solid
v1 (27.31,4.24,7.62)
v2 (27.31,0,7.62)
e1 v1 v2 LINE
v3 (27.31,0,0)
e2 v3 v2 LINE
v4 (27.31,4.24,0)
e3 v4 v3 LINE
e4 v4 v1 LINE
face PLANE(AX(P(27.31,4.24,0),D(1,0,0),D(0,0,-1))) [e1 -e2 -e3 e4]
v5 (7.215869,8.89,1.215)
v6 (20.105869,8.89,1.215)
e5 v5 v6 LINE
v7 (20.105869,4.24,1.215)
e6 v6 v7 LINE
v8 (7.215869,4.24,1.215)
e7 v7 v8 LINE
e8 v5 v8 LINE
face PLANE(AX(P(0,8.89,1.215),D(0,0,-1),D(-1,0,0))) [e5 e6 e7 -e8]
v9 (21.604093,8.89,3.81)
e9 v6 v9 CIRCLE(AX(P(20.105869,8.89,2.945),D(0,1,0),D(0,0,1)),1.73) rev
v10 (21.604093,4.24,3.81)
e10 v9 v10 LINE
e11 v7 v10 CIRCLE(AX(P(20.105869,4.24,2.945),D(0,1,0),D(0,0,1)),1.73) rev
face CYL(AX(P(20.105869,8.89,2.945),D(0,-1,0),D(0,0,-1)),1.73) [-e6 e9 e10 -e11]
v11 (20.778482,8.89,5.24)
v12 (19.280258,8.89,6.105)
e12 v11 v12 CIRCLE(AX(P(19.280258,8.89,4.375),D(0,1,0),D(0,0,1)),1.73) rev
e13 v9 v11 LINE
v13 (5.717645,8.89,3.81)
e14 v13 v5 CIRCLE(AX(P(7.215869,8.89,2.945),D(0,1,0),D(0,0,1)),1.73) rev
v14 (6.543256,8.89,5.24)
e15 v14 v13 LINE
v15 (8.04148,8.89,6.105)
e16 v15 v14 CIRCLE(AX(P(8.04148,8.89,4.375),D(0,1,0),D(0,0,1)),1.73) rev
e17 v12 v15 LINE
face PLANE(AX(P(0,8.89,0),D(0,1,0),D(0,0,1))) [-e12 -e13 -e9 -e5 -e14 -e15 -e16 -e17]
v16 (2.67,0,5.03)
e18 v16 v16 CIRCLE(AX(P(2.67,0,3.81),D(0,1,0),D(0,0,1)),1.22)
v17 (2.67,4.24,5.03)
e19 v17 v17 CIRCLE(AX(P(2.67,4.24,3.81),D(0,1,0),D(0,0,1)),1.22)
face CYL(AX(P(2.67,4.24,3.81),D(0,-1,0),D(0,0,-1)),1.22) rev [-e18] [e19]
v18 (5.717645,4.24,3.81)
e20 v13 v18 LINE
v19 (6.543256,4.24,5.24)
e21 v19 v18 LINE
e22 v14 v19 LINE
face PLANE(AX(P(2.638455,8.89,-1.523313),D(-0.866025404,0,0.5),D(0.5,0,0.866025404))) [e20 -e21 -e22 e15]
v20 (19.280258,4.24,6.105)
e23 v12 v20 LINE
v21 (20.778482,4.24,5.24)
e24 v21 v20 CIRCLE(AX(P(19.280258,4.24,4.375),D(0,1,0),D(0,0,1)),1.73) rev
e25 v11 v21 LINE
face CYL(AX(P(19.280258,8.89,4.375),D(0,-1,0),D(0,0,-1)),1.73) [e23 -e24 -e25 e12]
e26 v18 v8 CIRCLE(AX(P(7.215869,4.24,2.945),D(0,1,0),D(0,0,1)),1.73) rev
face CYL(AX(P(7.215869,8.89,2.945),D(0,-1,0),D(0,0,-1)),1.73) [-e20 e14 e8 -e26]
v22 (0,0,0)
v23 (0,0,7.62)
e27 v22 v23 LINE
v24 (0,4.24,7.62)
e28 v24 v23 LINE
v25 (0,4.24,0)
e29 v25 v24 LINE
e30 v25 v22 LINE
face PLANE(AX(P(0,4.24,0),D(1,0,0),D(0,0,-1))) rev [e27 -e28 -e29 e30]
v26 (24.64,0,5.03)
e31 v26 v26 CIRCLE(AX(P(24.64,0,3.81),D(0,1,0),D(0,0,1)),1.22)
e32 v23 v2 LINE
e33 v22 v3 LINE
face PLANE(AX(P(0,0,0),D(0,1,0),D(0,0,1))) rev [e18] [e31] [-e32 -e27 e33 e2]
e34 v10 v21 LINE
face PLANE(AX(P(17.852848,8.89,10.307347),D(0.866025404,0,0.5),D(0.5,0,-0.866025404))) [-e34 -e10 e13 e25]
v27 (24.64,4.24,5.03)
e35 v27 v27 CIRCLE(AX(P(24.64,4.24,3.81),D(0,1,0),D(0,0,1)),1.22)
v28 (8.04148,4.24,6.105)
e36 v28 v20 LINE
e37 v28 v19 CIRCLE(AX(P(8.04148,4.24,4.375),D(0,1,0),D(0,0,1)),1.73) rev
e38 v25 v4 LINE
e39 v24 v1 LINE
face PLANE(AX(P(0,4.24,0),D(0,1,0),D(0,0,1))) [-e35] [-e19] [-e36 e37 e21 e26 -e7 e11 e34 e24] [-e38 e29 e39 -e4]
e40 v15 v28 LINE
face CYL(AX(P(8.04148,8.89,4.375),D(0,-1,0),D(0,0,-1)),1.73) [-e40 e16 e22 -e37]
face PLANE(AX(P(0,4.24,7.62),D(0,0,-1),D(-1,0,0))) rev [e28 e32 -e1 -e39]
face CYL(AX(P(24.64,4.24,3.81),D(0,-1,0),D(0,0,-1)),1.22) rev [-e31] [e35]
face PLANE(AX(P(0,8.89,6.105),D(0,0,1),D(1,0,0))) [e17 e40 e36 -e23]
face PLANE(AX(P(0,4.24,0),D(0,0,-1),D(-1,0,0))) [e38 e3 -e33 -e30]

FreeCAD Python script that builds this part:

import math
import FreeCAD as App
import Part
import Sketcher
Q = App.Units.Quantity


def add_polygon(sketch, points):
    """Adds a closed chain of lines whose ends are joined by coincident constraints."""
    first, n = sketch.GeometryCount, len(points)
    for a, b in zip(points, points[1:] + points[:1]):
        sketch.addGeometry(Part.LineSegment(App.Vector(*a, 0), App.Vector(*b, 0)), False)
    for i in range(n):
        sketch.addConstraint(Sketcher.Constraint("Coincident", first + i, 2, first + (i + 1) % n, 1))

doc = App.newDocument("Part")
body = doc.addObject("PartDesign::Body", "Body")

sketch1 = body.newObject("Sketcher::SketchObject", "Sketch")
sketch1.AttachmentSupport = (doc.getObject("XZ_Plane"), [""])
sketch1.MapMode = "FlatFace"
add_polygon(sketch1, [(0, 0), (0, 7.62), (27.31, 7.62), (27.31, 0)])
sketch1.addGeometry(Part.Circle(App.Vector(2.67, 3.81, 0), App.Vector(0, 0, 1), 1.22), False)
sketch1.addGeometry(Part.Circle(App.Vector(24.64, 3.81, 0), App.Vector(0, 0, 1), 1.22), False)
sketch1.addGeometry(Part.ArcOfCircle(Part.Circle(App.Vector(19.28, 4.38, 0), App.Vector(0, 0, 1), 1.73), math.radians(30), math.radians(43.23)), False)
sketch1.addGeometry(Part.LineSegment(App.Vector(20.54, 5.56, 0), App.Vector(6.78, 5.56, 0)), False)
sketch1.addGeometry(Part.ArcOfCircle(Part.Circle(App.Vector(8.04, 4.38, 0), App.Vector(0, 0, 1), 1.73), math.radians(136.77), math.radians(150)), False)
sketch1.addGeometry(Part.LineSegment(App.Vector(6.54, 5.24, 0), App.Vector(5.72, 3.81, 0)), False)
sketch1.addGeometry(Part.ArcOfCircle(Part.Circle(App.Vector(7.22, 2.95, 0), App.Vector(0, 0, 1), 1.73), math.radians(150), math.radians(158.61)), False)
sketch1.addGeometry(Part.LineSegment(App.Vector(5.61, 3.58, 0), App.Vector(5.61, 2.31, 0)), False)
sketch1.addGeometry(Part.ArcOfCircle(Part.Circle(App.Vector(7.22, 2.95, 0), App.Vector(0, 0, 1), 1.73), math.radians(-158.61), math.radians(-149.23)), False)
sketch1.addGeometry(Part.LineSegment(App.Vector(5.73, 2.06, 0), App.Vector(21.59, 2.06, 0)), False)
sketch1.addGeometry(Part.ArcOfCircle(Part.Circle(App.Vector(20.11, 2.95, 0), App.Vector(0, 0, 1), 1.73), math.radians(-30.77), math.radians(-22.43)), False)
sketch1.addGeometry(Part.LineSegment(App.Vector(21.7, 2.28, 0), App.Vector(21.7, 3.61, 0)), False)
sketch1.addGeometry(Part.ArcOfCircle(Part.Circle(App.Vector(20.11, 2.94, 0), App.Vector(0, 0, 1), 1.73), math.radians(22.43), math.radians(30)), False)
sketch1.addGeometry(Part.LineSegment(App.Vector(21.6, 3.81, 0), App.Vector(20.78, 5.24, 0)), False)
sketch1.addConstraint([
    Sketcher.Constraint("Coincident", 6, 2, 7, 1),
    Sketcher.Constraint("Coincident", 7, 2, 8, 1),
    Sketcher.Constraint("Tangent", 8, 2, 9, 1),
    Sketcher.Constraint("Tangent", 9, 2, 10, 1),
    Sketcher.Constraint("Coincident", 10, 2, 11, 1),
    Sketcher.Constraint("Coincident", 11, 2, 12, 1),
    Sketcher.Constraint("Coincident", 12, 2, 13, 1),
    Sketcher.Constraint("Coincident", 13, 2, 14, 1),
    Sketcher.Constraint("Coincident", 14, 2, 15, 1),
    Sketcher.Constraint("Coincident", 15, 2, 16, 1),
    Sketcher.Constraint("Tangent", 16, 2, 17, 1),
    Sketcher.Constraint("Tangent", 17, 2, 6, 1),
    Sketcher.Constraint("Vertical", 0),
    Sketcher.Constraint("Horizontal", 1),
    Sketcher.Constraint("Vertical", 2),
    Sketcher.Constraint("Horizontal", 3),
    Sketcher.Constraint("Horizontal", 7),
    Sketcher.Constraint("Vertical", 11),
    Sketcher.Constraint("Horizontal", 13),
    Sketcher.Constraint("Vertical", 15),
    Sketcher.Constraint("Coincident", 3, 2, -1, 1),
    Sketcher.Constraint("Coincident", 12, 3, 10, 3),
    Sketcher.Constraint("Coincident", 16, 3, 14, 3),
    Sketcher.Constraint("Equal", 4, 5),
    Sketcher.Constraint("Equal", 6, 8),
    Sketcher.Constraint("Equal", 8, 10),
    Sketcher.Constraint("Equal", 10, 12),
    Sketcher.Constraint("Equal", 12, 14),
    Sketcher.Constraint("Equal", 14, 16),
    Sketcher.Constraint("Horizontal", 4, 3, 5, 3),
    Sketcher.Constraint("Horizontal", 6, 3, 8, 3),
    Sketcher.Constraint("Horizontal", 12, 3, 14, 3),
    Sketcher.Constraint("Horizontal", 5, 3, 9, 2),
    Sketcher.Constraint("Horizontal", 9, 2, 16, 2),
    Sketcher.Constraint("DistanceY", 0, 1, 0, 2, Q("0.3 in")),
    Sketcher.Constraint("Angle", 9, Q("-120 deg")),
    Sketcher.Constraint("Diameter", 4, Q("2.44 mm")),
    Sketcher.Constraint("DistanceY", -1, 1, 4, 3, Q("0.15 in")),
    Sketcher.Constraint("Radius", 6, Q("1.73 mm")),
    Sketcher.Constraint("DistanceX", 1, 1, 1, 2, Q("27.31 mm")),
    Sketcher.Constraint("DistanceX", 7, 2, 7, 1, Q("13.759631 mm")),
    Sketcher.Constraint("DistanceY", 15, 1, 15, 2, Q("1.320121 mm")),
    Sketcher.Constraint("DistanceX", -1, 1, 4, 3, Q("2.67 mm")),
    Sketcher.Constraint("DistanceX", -1, 1, 5, 3, Q("24.64 mm")),
    Sketcher.Constraint("DistanceY", -1, 1, 6, 3, Q("4.375 mm")),
    Sketcher.Constraint("DistanceY", -1, 1, 6, 2, Q("5.56 mm")),
    Sketcher.Constraint("DistanceX", -1, 1, 10, 2, Q("5.605 mm")),
    Sketcher.Constraint("DistanceY", -1, 1, 12, 2, Q("2.06 mm")),
    Sketcher.Constraint("DistanceX", -1, 1, 14, 2, Q("21.705 mm")),
])
pad1 = body.newObject("PartDesign::Pad", "Pad")
pad1.Profile = sketch1
pad1.Length = 4.24
pad1.Reversed = True

sketch2 = body.newObject("Sketcher::SketchObject", "Sketch001")
sketch2.AttachmentSupport = (doc.getObject("XZ_Plane"), [""])
sketch2.MapMode = "FlatFace"
sketch2.addGeometry([
    Part.ArcOfCircle(Part.Circle(App.Vector(20.11, 2.94, 0), App.Vector(0, 0, 1), 1.73), math.radians(-90), math.radians(-31)),
    Part.LineSegment(App.Vector(20.11, 1.22, 0), App.Vector(7.22, 1.22, 0)),
    Part.ArcOfCircle(Part.Circle(App.Vector(7.22, 2.94, 0), App.Vector(0, 0, 1), 1.73), math.radians(-149), math.radians(-90)),
    Part.ArcOfCircle(Part.Circle(App.Vector(7.22, 2.95, 0), App.Vector(0, 0, 1), 1.73), math.radians(-158.61), math.radians(-149.23)),
    Part.ArcOfCircle(Part.Circle(App.Vector(7.22, 2.95, 0), App.Vector(0, 0, 1), 1.73), math.radians(-180), math.radians(-159)),
    Part.ArcOfCircle(Part.Circle(App.Vector(7.22, 2.94, 0), App.Vector(0, 0, 1), 1.73), math.radians(159), math.radians(180)),
    Part.ArcOfCircle(Part.Circle(App.Vector(7.22, 2.95, 0), App.Vector(0, 0, 1), 1.73), math.radians(150), math.radians(158.61)),
    Part.LineSegment(App.Vector(5.72, 3.81, 0), App.Vector(6.54, 5.24, 0)),
    Part.ArcOfCircle(Part.Circle(App.Vector(8.04, 4.38, 0), App.Vector(0, 0, 1), 1.73), math.radians(136.77), math.radians(150)),
    Part.ArcOfCircle(Part.Circle(App.Vector(8.04, 4.37, 0), App.Vector(0, 0, 1), 1.73), math.radians(90), math.radians(137)),
    Part.LineSegment(App.Vector(8.04, 6.11, 0), App.Vector(19.28, 6.11, 0)),
    Part.ArcOfCircle(Part.Circle(App.Vector(19.28, 4.37, 0), App.Vector(0, 0, 1), 1.73), math.radians(43), math.radians(90)),
    Part.ArcOfCircle(Part.Circle(App.Vector(19.28, 4.38, 0), App.Vector(0, 0, 1), 1.73), math.radians(30), math.radians(43.23)),
    Part.LineSegment(App.Vector(20.78, 5.24, 0), App.Vector(21.6, 3.81, 0)),
    Part.ArcOfCircle(Part.Circle(App.Vector(20.11, 2.94, 0), App.Vector(0, 0, 1), 1.73), math.radians(22.43), math.radians(30)),
    Part.ArcOfCircle(Part.Circle(App.Vector(20.11, 2.94, 0), App.Vector(0, 0, 1), 1.73), math.radians(-22), math.radians(22)),
    Part.ArcOfCircle(Part.Circle(App.Vector(20.11, 2.95, 0), App.Vector(0, 0, 1), 1.73), math.radians(-30.77), math.radians(-22.43)),
], False)
sketch2.addConstraint([
    Sketcher.Constraint("Tangent", 0, 1, 1, 1),
    Sketcher.Constraint("Tangent", 1, 2, 2, 2),
    Sketcher.Constraint("Tangent", 2, 1, 3, 2),
    Sketcher.Constraint("Tangent", 3, 1, 4, 2),
    Sketcher.Constraint("Tangent", 4, 1, 5, 2),
    Sketcher.Constraint("Tangent", 5, 1, 6, 2),
    Sketcher.Constraint("Tangent", 6, 1, 7, 1),
    Sketcher.Constraint("Tangent", 7, 2, 8, 2),
    Sketcher.Constraint("Tangent", 8, 1, 9, 2),
    Sketcher.Constraint("Tangent", 9, 1, 10, 1),
    Sketcher.Constraint("Tangent", 10, 2, 11, 2),
    Sketcher.Constraint("Tangent", 11, 1, 12, 2),
    Sketcher.Constraint("Tangent", 12, 1, 13, 1),
    Sketcher.Constraint("Tangent", 13, 2, 14, 2),
    Sketcher.Constraint("Tangent", 14, 1, 15, 2),
    Sketcher.Constraint("Tangent", 15, 1, 16, 2),
    Sketcher.Constraint("Tangent", 16, 1, 0, 2),
    Sketcher.Constraint("Horizontal", 1),
    Sketcher.Constraint("Horizontal", 10),
    Sketcher.Constraint("Coincident", 4, 3, 2, 3),
    Sketcher.Constraint("Coincident", 6, 3, 2, 3),
    Sketcher.Constraint("Coincident", 14, 3, 0, 3),
    Sketcher.Constraint("Equal", 0, 2),
    Sketcher.Constraint("Equal", 6, 8),
    Sketcher.Constraint("Equal", 8, 9),
    Sketcher.Constraint("Equal", 9, 11),
    Sketcher.Constraint("Equal", 11, 12),
    Sketcher.Constraint("Equal", 12, 14),
    Sketcher.Constraint("Horizontal", 16, 3, 4, 1),
    Sketcher.Constraint("Horizontal", 8, 1, 11, 1),
    Sketcher.Constraint("Horizontal", 7, 2, 12, 1),
    Sketcher.Constraint("Horizontal", 2, 1, 16, 1),
    Sketcher.Constraint("Vertical", 3, 1, 5, 1),
    Sketcher.Constraint("Vertical", 14, 1, 15, 1),
    Sketcher.Constraint("Angle", 7, Q("60 deg")),
    Sketcher.Constraint("DistanceY", -1, 1, 6, 1, Q("0.15 in")),
    Sketcher.Constraint("Radius", 0, Q("1.73 mm")),
    Sketcher.Constraint("DistanceX", 1, 2, 1, 1, Q("12.89 mm")),
    Sketcher.Constraint("DistanceX", 10, 1, 10, 2, Q("11.238778 mm")),
    Sketcher.Constraint("DistanceY", -1, 1, 2, 1, Q("2.06 mm")),
    Sketcher.Constraint("DistanceX", -1, 1, 3, 1, Q("5.605 mm")),
    Sketcher.Constraint("DistanceY", -1, 1, 8, 1, Q("5.56 mm")),
    Sketcher.Constraint("DistanceX", -1, 1, 14, 1, Q("21.705 mm")),
    Sketcher.Constraint("DistanceX", -1, 1, 0, 3, Q("20.105869 mm")),
])
pad2 = body.newObject("PartDesign::Pad", "Pad001")
pad2.Profile = sketch2
pad2.Length = Q("0.35 in")
pad2.Reversed = True

doc.recompute()
